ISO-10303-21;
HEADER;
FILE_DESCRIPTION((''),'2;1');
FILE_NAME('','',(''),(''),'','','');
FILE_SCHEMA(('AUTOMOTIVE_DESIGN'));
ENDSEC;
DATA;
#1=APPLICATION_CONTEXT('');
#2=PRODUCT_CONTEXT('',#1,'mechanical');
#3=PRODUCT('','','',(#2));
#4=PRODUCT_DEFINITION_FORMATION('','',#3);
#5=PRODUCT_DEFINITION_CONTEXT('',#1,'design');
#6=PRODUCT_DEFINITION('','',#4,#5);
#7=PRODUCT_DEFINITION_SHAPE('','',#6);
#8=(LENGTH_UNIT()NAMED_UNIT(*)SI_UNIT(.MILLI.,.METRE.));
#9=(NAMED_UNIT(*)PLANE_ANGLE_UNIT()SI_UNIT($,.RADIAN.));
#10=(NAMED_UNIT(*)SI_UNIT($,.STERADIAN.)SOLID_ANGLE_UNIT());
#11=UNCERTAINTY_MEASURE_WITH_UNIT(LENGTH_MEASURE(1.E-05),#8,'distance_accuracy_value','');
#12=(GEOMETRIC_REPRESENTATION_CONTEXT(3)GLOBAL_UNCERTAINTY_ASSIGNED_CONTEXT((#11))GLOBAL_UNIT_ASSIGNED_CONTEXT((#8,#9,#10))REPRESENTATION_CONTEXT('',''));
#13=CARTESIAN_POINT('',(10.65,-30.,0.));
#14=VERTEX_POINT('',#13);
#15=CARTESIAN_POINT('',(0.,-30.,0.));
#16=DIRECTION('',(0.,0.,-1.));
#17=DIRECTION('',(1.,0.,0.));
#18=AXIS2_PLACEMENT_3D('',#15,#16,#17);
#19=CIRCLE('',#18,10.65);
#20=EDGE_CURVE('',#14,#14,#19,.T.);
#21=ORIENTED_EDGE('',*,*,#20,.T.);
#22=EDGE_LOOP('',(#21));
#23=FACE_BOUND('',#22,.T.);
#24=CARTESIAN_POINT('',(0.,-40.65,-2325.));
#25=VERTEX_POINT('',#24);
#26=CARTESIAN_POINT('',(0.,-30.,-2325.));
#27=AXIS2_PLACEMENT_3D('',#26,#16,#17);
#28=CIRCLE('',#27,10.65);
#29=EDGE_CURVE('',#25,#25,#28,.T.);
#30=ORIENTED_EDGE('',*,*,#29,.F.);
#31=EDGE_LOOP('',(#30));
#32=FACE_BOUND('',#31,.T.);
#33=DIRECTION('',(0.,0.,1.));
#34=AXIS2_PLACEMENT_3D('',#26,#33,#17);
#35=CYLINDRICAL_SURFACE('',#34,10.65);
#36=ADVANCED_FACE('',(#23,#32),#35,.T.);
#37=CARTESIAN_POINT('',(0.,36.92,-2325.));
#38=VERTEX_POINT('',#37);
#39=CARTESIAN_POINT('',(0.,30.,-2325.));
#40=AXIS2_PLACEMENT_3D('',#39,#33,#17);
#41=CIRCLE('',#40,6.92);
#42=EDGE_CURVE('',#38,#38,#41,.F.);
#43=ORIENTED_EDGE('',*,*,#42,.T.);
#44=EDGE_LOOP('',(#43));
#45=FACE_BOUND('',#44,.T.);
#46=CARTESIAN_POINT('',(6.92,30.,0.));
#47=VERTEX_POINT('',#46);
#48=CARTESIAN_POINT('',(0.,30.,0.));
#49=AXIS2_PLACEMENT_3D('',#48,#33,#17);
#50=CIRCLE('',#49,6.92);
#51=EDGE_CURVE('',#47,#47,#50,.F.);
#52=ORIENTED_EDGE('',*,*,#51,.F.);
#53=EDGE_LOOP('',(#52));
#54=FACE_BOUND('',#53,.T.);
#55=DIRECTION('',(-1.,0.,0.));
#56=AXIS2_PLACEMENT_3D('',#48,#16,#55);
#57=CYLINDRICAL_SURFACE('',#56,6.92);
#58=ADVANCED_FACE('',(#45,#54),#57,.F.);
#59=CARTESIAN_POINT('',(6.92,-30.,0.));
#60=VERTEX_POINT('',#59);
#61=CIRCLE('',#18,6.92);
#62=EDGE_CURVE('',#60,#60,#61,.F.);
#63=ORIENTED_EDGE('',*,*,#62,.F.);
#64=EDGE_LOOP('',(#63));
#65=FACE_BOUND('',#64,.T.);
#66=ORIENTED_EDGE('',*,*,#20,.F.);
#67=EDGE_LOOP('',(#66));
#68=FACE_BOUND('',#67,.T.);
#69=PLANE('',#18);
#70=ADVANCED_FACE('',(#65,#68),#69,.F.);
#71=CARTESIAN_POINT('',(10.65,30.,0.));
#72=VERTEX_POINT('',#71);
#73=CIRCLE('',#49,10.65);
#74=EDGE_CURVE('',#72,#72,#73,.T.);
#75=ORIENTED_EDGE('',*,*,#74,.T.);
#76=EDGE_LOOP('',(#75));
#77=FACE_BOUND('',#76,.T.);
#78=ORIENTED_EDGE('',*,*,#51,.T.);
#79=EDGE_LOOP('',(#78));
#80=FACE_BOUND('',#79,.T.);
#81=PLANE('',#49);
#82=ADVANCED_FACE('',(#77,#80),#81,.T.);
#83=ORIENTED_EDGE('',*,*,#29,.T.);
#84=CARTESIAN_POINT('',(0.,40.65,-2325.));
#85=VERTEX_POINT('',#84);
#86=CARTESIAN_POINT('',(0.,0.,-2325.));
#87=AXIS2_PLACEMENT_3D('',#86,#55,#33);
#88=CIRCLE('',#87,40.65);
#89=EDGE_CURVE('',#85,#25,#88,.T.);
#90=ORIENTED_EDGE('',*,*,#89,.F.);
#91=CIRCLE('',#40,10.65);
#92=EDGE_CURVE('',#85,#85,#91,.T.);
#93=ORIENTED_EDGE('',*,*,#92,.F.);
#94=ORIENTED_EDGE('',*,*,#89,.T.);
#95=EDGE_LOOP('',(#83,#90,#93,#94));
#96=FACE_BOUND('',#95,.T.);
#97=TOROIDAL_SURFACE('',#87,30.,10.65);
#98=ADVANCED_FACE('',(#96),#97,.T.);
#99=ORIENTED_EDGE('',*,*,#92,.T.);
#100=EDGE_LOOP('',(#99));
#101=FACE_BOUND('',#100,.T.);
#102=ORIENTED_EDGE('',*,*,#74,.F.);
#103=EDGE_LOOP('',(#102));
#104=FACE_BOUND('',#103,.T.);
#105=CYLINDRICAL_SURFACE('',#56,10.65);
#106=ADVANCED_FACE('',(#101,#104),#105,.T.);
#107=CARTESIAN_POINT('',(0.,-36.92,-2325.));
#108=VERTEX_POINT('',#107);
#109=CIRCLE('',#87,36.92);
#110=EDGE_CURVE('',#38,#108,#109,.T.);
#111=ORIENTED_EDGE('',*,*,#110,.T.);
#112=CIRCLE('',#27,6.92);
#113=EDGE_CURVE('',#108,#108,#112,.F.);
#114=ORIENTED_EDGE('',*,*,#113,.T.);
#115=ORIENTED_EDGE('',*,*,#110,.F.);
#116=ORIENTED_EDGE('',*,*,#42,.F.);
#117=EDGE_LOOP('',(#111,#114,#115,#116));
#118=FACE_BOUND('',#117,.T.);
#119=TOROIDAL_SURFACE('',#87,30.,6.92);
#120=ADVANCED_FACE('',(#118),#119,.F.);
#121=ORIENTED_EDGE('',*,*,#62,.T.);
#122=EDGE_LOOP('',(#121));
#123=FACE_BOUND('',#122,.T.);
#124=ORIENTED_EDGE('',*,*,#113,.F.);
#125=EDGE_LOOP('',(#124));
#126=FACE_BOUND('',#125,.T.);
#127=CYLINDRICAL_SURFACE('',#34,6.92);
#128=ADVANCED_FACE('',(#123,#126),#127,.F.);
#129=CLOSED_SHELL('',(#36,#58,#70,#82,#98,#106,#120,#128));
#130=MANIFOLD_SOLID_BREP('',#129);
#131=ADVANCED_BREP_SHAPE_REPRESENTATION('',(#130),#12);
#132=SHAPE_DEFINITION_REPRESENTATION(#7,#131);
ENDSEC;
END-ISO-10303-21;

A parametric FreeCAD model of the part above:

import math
import FreeCAD as App
import Part
import Sketcher

V = App.Vector
Q = App.Units.Quantity

doc = App.newDocument("Part")
body = doc.addObject("PartDesign::Body", "Body")

# Sketch on XY plane
sketch1 = body.newObject("Sketcher::SketchObject", "Sketch")
sketch1.AttachmentSupport = (doc.getObject("XY_Plane"), [""])
sketch1.MapMode = "FlatFace"
sketch1.addGeometry([
    Part.Circle(V(0, 30, 0), V(0, 0, 1), 11),
    Part.Circle(V(0, 30, 0), V(0, 0, 1), 7),
], False)
sketch1.addConstraint([
    Sketcher.Constraint("Coincident", 1, 3, 0, 3),
    Sketcher.Constraint("PointOnObject", 0, 3, -2),
    Sketcher.Constraint("Diameter", 0, Q("21.3 mm")),
    Sketcher.Constraint("Diameter", 1, Q("13.84 mm")),
    Sketcher.Constraint("DistanceY", -1, 1, 0, 3, Q("30 mm")),
])

# Sketch on YZ plane
sketch2 = body.newObject("Sketcher::SketchObject", "Sketch001")
sketch2.AttachmentSupport = (doc.getObject("YZ_Plane"), [""])
sketch2.MapMode = "FlatFace"
sketch2.addGeometry([
    Part.LineSegment(V(30, 0, 0), V(30, -2325, 0)),
    Part.ArcOfCircle(Part.Circle(V(0, -2325, 0), V(0, 0, 1), 30), math.radians(180), math.radians(360)),
    Part.LineSegment(V(-30, -2325, 0), V(-30, 0, 0)),
], False)
sketch2.addConstraint([
    Sketcher.Constraint("Tangent", 0, 2, 1, 2),
    Sketcher.Constraint("Tangent", 1, 1, 2, 1),
    Sketcher.Constraint("Vertical", 0),
    Sketcher.Constraint("Vertical", 2),
    Sketcher.Constraint("Symmetric", 0, 1, 2, 2, -1, 1),
    Sketcher.Constraint("PointOnObject", 0, 1, -1),
    Sketcher.Constraint("Radius", 1, Q("30 mm")),
    Sketcher.Constraint("DistanceY", 0, 2, 0, 1, Q("2325 mm")),
])
doc.recompute()

additivepipe = body.newObject("PartDesign::AdditivePipe", "AdditivePipe")
additivepipe.Profile = sketch1
additivepipe.Spine = (sketch2, ["Edge1", "Edge2", "Edge3"])

doc.recompute()
